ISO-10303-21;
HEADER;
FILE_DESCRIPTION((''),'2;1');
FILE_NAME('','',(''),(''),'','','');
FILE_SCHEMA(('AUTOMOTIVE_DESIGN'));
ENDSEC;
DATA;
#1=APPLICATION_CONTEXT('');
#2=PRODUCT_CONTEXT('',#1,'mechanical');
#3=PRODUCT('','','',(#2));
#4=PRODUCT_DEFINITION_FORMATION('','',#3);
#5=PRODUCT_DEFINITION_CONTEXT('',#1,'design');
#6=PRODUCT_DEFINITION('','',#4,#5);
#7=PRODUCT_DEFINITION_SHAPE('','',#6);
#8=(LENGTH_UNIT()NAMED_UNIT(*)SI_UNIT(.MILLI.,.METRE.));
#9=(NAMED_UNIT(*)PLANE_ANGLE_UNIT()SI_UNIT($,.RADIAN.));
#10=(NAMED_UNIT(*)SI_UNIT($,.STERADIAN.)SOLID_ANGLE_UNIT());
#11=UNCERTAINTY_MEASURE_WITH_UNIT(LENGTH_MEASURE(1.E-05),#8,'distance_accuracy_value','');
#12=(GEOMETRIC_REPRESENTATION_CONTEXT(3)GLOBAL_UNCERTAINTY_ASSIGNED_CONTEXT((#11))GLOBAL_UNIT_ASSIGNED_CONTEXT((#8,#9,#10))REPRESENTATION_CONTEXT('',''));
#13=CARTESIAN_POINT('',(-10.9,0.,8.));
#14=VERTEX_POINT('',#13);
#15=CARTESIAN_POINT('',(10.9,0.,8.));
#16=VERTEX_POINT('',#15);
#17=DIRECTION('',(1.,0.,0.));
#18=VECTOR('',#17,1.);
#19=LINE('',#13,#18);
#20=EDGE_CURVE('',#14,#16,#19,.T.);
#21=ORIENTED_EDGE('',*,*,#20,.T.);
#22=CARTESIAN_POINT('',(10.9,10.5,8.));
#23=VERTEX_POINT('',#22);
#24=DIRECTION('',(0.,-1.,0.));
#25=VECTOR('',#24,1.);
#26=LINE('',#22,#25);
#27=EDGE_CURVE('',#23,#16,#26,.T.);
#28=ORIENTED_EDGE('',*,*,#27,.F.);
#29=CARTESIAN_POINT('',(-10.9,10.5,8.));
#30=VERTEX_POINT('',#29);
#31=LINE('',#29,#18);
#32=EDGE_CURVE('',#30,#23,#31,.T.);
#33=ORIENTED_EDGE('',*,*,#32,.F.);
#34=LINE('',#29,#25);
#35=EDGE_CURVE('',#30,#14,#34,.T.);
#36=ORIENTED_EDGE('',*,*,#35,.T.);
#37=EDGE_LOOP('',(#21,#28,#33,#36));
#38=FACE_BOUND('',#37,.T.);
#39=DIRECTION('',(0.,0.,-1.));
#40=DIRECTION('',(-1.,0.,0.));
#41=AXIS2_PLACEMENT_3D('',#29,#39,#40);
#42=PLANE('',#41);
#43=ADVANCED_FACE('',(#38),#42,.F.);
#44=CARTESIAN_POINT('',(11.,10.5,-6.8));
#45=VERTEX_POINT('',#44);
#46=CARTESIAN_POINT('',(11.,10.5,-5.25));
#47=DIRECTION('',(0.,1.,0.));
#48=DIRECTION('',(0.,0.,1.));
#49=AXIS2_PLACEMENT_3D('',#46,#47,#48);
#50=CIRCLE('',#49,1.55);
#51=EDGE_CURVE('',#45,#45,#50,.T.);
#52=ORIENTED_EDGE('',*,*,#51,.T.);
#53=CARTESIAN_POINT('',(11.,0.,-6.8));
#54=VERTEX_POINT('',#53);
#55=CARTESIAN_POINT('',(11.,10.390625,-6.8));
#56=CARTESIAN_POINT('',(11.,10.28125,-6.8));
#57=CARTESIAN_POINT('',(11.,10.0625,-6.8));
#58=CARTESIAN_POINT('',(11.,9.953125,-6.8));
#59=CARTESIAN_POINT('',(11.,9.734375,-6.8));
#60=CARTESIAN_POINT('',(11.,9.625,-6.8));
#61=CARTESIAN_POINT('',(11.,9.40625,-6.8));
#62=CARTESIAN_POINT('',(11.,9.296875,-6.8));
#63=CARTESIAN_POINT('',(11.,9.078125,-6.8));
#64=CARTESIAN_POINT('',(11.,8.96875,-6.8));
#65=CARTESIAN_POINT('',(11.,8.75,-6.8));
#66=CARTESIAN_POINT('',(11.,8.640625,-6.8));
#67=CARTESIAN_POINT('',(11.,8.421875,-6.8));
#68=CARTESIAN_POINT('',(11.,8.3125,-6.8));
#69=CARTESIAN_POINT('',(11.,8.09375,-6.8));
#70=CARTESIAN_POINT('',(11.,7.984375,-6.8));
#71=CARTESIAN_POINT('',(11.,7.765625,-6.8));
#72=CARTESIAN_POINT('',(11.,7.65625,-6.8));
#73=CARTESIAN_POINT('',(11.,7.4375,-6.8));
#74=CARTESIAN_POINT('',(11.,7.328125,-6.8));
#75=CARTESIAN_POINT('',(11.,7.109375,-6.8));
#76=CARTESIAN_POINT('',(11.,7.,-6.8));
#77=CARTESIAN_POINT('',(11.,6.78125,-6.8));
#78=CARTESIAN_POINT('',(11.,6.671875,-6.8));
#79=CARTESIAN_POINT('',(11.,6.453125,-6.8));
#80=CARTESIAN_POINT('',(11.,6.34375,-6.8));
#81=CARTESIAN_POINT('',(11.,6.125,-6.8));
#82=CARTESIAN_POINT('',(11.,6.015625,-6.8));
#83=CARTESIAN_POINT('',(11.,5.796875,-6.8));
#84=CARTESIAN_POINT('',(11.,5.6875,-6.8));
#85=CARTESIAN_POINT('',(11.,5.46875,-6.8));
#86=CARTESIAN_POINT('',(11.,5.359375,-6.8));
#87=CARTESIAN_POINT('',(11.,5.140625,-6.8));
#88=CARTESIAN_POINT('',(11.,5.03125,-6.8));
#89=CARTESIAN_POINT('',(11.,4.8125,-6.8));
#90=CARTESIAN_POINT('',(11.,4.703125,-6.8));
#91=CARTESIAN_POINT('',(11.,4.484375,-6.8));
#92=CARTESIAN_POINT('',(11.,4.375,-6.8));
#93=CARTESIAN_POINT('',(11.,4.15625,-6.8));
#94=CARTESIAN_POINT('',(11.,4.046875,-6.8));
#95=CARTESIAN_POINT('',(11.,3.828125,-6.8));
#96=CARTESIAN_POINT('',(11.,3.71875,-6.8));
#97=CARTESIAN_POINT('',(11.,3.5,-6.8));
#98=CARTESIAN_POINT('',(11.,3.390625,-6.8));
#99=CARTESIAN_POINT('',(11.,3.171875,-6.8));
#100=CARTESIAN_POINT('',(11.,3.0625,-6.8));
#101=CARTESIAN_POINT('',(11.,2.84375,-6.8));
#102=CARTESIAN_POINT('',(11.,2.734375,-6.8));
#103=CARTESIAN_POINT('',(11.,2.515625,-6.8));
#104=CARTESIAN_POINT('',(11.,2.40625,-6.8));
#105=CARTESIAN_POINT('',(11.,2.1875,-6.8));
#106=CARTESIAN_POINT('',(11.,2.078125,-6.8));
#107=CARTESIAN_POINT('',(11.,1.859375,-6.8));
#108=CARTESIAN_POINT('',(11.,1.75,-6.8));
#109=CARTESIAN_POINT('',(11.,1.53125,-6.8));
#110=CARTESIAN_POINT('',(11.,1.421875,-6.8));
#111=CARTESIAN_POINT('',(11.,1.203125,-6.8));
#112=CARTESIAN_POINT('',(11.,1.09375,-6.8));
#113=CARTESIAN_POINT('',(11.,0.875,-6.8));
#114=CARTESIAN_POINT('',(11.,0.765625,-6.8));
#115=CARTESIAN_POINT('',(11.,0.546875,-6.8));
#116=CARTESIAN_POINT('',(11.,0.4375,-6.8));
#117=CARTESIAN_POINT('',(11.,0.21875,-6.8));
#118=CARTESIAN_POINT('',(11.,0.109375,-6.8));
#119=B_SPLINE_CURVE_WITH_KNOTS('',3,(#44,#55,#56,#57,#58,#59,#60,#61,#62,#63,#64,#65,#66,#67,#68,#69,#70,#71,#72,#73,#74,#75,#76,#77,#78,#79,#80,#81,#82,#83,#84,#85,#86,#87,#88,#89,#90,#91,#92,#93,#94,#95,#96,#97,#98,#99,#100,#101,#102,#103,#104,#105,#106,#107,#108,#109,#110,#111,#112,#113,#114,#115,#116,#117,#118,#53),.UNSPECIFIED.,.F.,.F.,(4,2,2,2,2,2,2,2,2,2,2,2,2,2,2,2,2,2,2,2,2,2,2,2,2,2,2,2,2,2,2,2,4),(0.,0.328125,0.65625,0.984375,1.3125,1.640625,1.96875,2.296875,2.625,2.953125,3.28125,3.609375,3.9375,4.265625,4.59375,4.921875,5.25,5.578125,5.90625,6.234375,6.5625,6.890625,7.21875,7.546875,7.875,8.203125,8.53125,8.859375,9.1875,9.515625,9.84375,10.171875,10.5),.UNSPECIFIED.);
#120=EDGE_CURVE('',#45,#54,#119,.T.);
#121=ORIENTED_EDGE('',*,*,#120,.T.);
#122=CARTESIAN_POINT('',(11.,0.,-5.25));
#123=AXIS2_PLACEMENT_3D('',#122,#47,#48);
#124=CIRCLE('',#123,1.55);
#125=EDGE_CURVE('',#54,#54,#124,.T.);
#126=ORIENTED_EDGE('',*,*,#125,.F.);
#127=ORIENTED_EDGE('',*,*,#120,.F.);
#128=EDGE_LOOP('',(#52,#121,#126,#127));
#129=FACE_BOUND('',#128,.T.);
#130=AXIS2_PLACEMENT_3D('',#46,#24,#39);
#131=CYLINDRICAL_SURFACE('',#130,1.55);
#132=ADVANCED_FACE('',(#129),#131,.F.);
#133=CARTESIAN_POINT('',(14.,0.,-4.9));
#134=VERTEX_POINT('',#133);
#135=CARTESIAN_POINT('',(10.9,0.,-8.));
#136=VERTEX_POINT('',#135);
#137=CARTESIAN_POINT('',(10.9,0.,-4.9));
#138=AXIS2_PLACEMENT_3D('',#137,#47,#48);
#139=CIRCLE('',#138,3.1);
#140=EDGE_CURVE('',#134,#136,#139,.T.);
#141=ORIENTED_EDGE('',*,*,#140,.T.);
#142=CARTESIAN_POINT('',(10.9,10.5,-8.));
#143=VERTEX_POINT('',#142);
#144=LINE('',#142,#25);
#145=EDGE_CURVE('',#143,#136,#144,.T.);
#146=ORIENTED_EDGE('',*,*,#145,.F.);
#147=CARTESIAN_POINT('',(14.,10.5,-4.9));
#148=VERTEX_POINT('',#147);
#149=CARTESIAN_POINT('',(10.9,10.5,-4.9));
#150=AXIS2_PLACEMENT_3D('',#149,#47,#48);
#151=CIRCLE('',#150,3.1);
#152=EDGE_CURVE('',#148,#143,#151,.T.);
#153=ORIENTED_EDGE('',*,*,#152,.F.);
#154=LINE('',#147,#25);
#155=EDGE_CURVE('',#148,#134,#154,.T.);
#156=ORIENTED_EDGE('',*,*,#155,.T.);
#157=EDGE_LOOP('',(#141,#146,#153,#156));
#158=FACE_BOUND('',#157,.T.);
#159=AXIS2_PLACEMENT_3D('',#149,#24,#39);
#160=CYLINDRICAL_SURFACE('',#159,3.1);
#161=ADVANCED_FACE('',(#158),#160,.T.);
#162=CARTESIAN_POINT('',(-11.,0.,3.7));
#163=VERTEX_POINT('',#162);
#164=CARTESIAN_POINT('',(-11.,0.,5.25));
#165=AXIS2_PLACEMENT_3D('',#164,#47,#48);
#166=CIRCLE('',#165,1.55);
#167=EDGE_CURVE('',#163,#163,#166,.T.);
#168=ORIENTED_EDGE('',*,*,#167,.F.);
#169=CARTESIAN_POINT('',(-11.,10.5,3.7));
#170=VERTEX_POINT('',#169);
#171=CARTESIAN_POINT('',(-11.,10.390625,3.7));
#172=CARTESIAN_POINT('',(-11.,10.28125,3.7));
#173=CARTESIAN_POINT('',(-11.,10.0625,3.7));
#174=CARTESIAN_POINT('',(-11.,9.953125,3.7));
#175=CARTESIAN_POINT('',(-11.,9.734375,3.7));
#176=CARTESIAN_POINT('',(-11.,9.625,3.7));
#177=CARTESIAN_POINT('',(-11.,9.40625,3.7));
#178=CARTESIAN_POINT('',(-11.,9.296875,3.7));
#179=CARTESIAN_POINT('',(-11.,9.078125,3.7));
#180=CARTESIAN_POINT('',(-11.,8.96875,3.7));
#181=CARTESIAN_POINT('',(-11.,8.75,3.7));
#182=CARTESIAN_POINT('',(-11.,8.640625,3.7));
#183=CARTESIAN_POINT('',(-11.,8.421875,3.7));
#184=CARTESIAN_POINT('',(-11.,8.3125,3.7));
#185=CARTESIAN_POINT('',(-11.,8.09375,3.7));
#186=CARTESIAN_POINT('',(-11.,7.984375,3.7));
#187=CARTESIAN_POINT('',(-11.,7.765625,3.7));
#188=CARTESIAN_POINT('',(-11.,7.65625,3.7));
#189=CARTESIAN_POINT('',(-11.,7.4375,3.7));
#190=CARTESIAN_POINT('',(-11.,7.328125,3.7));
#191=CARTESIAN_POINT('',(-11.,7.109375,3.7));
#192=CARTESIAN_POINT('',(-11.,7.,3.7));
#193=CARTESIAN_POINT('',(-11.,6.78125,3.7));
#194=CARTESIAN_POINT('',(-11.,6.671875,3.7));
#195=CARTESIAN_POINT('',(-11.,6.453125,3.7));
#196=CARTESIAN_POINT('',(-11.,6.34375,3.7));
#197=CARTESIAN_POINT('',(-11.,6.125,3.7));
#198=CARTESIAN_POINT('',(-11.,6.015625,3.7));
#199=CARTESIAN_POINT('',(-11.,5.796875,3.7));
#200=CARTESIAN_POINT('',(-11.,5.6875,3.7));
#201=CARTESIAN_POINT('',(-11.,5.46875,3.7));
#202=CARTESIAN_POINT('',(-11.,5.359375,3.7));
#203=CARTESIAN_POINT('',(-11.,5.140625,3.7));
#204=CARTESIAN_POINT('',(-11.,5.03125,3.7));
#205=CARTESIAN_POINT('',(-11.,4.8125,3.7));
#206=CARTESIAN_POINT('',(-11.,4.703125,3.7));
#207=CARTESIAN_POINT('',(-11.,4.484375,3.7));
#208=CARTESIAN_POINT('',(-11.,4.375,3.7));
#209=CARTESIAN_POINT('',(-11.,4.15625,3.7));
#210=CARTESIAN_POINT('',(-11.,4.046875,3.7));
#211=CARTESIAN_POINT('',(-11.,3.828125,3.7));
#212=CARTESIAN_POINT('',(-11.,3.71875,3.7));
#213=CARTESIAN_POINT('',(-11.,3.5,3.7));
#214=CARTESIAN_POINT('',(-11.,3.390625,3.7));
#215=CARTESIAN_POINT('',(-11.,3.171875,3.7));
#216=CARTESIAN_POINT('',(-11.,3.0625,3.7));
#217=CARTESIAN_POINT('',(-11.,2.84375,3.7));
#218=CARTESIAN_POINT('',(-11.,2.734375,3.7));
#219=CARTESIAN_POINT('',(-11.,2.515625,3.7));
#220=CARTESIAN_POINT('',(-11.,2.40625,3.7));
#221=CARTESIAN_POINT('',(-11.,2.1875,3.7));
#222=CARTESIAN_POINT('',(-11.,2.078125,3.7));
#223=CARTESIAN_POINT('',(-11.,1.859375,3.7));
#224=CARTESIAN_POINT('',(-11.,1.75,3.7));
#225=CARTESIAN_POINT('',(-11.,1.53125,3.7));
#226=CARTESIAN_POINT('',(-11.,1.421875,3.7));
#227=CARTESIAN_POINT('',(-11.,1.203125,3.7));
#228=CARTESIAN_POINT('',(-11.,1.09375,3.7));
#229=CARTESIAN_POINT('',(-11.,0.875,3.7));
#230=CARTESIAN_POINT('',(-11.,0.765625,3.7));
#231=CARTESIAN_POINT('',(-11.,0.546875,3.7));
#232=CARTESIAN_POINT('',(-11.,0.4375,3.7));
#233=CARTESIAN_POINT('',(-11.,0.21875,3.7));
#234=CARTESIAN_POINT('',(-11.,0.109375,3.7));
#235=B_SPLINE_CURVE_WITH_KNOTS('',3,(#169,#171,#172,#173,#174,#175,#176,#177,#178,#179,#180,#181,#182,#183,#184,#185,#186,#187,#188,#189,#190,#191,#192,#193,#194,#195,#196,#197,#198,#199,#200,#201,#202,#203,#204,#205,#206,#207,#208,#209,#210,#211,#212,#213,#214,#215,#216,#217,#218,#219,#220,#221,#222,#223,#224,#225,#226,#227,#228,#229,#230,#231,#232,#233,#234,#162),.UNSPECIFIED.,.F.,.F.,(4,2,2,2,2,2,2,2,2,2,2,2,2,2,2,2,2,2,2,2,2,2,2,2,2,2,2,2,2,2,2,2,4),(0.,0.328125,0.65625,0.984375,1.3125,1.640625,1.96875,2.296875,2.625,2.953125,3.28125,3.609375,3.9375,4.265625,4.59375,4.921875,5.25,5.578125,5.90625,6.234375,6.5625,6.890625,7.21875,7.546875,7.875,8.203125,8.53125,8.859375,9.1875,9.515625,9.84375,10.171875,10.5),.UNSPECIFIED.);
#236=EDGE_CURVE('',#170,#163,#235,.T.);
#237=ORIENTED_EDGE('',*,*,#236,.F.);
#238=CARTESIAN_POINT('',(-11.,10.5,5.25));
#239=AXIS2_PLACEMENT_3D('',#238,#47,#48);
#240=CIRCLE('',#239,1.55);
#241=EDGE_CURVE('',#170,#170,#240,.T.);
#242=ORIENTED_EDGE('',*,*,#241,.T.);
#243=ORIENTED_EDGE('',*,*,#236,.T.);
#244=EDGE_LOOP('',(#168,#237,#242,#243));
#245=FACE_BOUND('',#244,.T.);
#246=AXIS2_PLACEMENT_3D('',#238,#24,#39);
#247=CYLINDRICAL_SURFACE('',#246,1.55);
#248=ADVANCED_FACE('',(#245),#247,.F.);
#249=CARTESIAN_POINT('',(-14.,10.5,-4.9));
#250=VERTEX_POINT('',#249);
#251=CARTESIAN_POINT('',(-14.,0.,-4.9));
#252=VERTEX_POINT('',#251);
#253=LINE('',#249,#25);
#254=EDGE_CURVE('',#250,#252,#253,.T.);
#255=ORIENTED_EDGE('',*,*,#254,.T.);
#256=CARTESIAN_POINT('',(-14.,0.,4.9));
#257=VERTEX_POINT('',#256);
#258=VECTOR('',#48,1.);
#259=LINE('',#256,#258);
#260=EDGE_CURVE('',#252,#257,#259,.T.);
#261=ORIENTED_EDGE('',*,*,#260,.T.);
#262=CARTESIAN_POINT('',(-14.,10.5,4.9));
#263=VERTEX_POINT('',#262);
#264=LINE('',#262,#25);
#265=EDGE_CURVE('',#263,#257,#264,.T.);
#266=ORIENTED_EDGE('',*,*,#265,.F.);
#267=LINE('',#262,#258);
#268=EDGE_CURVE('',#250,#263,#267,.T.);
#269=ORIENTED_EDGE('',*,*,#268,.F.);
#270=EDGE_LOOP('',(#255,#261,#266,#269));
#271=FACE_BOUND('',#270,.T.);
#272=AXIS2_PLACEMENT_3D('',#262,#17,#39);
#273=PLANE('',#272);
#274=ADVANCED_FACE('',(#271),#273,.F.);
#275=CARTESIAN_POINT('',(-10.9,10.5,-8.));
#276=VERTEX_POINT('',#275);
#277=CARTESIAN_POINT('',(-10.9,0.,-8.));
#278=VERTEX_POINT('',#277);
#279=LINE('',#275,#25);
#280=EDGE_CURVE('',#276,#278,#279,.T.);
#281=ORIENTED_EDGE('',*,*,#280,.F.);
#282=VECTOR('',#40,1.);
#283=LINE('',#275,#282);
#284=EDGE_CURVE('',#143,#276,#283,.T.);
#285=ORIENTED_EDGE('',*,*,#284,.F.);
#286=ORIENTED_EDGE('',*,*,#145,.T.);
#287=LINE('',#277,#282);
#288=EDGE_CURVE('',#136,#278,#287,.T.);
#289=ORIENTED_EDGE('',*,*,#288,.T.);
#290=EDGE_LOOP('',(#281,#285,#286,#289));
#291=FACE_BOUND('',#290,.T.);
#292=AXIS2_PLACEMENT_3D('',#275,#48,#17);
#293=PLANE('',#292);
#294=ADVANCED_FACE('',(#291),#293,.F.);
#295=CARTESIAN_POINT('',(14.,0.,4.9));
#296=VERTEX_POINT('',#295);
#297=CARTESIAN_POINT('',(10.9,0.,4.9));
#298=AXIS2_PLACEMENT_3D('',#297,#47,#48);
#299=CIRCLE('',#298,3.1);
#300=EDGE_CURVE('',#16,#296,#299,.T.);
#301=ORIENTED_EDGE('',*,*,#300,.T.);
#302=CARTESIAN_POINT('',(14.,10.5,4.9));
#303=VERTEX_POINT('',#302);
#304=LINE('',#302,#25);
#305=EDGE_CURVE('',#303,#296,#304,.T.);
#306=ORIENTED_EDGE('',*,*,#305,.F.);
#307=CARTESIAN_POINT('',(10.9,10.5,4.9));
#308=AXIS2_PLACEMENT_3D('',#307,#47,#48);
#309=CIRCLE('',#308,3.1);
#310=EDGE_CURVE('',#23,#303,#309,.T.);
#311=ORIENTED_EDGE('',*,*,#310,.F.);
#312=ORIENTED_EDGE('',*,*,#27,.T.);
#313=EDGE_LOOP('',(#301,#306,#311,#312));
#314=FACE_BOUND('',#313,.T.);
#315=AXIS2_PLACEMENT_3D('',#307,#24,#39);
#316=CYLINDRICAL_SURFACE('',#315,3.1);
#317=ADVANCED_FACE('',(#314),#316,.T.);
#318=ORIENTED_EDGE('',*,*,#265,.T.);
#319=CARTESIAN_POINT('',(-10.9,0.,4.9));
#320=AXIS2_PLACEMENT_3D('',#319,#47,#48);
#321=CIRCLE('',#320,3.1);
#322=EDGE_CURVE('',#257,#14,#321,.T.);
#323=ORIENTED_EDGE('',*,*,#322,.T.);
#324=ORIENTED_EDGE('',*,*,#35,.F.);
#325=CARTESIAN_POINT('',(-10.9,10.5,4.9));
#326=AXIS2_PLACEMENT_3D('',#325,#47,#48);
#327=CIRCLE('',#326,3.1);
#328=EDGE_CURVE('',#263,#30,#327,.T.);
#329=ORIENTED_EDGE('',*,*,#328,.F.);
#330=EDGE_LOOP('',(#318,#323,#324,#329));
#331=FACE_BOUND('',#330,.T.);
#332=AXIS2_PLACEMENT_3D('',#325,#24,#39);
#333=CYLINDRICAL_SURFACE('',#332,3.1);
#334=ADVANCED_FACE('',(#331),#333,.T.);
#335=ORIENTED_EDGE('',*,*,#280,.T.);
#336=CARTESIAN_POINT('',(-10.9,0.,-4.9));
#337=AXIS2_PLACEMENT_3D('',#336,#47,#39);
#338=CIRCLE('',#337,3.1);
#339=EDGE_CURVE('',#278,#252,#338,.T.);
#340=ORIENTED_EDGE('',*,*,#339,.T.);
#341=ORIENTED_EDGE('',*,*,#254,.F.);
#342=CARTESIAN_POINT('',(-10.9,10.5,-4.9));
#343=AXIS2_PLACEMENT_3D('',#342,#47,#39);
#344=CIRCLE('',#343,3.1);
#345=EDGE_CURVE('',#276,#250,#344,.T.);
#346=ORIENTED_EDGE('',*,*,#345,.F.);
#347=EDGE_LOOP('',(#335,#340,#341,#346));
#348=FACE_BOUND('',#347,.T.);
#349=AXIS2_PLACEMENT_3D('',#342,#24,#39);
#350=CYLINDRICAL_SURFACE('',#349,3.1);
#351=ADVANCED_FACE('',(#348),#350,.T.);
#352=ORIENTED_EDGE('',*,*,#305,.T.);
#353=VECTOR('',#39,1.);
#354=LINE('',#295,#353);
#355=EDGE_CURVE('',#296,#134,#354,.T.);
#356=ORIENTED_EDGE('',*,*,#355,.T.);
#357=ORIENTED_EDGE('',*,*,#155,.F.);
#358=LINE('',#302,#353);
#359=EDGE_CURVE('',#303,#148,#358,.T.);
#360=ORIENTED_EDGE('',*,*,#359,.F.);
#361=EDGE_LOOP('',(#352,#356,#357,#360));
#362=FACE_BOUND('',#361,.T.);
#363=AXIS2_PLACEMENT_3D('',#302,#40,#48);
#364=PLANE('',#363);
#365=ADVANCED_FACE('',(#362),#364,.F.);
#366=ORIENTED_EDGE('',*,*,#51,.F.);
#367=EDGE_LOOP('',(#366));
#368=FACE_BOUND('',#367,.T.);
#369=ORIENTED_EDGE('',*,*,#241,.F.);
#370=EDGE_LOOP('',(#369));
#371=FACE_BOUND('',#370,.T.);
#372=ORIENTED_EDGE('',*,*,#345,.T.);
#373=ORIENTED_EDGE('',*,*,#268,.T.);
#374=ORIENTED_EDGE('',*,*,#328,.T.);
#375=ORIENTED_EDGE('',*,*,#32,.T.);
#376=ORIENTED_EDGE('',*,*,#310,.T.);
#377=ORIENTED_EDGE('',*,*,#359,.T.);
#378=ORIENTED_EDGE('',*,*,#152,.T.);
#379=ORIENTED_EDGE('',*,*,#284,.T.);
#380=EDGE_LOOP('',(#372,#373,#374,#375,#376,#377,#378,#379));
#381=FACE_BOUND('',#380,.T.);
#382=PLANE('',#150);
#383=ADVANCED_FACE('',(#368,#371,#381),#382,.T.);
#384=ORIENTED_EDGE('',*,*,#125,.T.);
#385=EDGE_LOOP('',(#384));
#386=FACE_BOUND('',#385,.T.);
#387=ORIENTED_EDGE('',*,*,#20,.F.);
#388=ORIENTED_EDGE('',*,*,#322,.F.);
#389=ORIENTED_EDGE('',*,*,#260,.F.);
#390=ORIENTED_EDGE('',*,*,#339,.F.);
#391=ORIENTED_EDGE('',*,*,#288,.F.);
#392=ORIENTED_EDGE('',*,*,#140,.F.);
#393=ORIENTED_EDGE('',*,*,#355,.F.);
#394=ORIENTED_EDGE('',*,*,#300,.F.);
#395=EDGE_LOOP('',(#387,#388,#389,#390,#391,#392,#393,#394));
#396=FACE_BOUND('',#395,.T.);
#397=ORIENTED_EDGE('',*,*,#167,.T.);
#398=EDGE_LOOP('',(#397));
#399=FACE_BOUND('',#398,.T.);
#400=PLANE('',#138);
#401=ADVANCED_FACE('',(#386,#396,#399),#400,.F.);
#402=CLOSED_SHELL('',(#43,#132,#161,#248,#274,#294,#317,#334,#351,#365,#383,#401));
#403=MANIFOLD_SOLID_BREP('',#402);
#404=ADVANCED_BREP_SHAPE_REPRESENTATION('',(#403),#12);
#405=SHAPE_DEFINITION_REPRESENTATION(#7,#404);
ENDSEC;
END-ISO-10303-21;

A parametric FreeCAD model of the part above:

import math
import FreeCAD as App
import Part
import Sketcher
Q = App.Units.Quantity

doc = App.newDocument("Part")
body = doc.addObject("PartDesign::Body", "Body")

sketch1 = body.newObject("Sketcher::SketchObject", "Sketch")
sketch1.AttachmentSupport = (doc.getObject("XZ_Plane"), [""])
sketch1.MapMode = "FlatFace"
sketch1.addGeometry([
    Part.LineSegment(App.Vector(-10.9, 8, 0), App.Vector(10.9, 8, 0)),
    Part.ArcOfCircle(Part.Circle(App.Vector(10.9, 4.9, 0), App.Vector(0, 0, 1), 3.1), math.radians(0), math.radians(90)),
    Part.LineSegment(App.Vector(14, 4.9, 0), App.Vector(14, -4.9, 0)),
    Part.ArcOfCircle(Part.Circle(App.Vector(10.9, -4.9, 0), App.Vector(0, 0, 1), 3.1), math.radians(-90), math.radians(0)),
    Part.LineSegment(App.Vector(10.9, -8, 0), App.Vector(-10.9, -8, 0)),
    Part.ArcOfCircle(Part.Circle(App.Vector(-10.9, -4.9, 0), App.Vector(0, 0, 1), 3.1), math.radians(180), math.radians(270)),
    Part.LineSegment(App.Vector(-14, -4.9, 0), App.Vector(-14, 4.9, 0)),
    Part.ArcOfCircle(Part.Circle(App.Vector(-10.9, 4.9, 0), App.Vector(0, 0, 1), 3.1), math.radians(90), math.radians(180)),
    Part.Circle(App.Vector(-11, 5.2, 0), App.Vector(0, 0, 1), 1.6),
    Part.Circle(App.Vector(11, -5.2, 0), App.Vector(0, 0, 1), 1.6),
], False)
sketch1.addConstraint([
    Sketcher.Constraint("Tangent", 0, 2, 1, 2),
    Sketcher.Constraint("Tangent", 1, 1, 2, 1),
    Sketcher.Constraint("Tangent", 2, 2, 3, 2),
    Sketcher.Constraint("Tangent", 3, 1, 4, 1),
    Sketcher.Constraint("Tangent", 4, 2, 5, 2),
    Sketcher.Constraint("Tangent", 5, 1, 6, 1),
    Sketcher.Constraint("Tangent", 6, 2, 7, 2),
    Sketcher.Constraint("Tangent", 7, 1, 0, 1),
    Sketcher.Constraint("Horizontal", 0),
    Sketcher.Constraint("Vertical", 2),
    Sketcher.Constraint("Horizontal", 4),
    Sketcher.Constraint("Vertical", 6),
    Sketcher.Constraint("Equal", 1, 3),
    Sketcher.Constraint("Equal", 3, 5),
    Sketcher.Constraint("Equal", 5, 7),
    Sketcher.Constraint("Equal", 8, 9),
    Sketcher.Constraint("Symmetric", 1, 3, 5, 3, -1, 1),
    Sketcher.Constraint("Symmetric", 8, 3, 9, 3, -1, 1),
    Sketcher.Constraint("Diameter", 8, Q("3.1 mm")),
    Sketcher.Constraint("Radius", 1, Q("3.1 mm")),
    Sketcher.Constraint("DistanceX", 0, 1, 0, 2, Q("21.8 mm")),
    Sketcher.Constraint("DistanceY", 2, 2, 2, 1, Q("9.8 mm")),
    Sketcher.Constraint("DistanceX", 8, 3, -1, 1, Q("11 mm")),
    Sketcher.Constraint("DistanceY", 9, 3, 8, 3, Q("10.5 mm")),
])
pad1 = body.newObject("PartDesign::Pad", "Pad")
pad1.Profile = sketch1
pad1.Length = 10.5
pad1.Reversed = True

doc.recompute()
